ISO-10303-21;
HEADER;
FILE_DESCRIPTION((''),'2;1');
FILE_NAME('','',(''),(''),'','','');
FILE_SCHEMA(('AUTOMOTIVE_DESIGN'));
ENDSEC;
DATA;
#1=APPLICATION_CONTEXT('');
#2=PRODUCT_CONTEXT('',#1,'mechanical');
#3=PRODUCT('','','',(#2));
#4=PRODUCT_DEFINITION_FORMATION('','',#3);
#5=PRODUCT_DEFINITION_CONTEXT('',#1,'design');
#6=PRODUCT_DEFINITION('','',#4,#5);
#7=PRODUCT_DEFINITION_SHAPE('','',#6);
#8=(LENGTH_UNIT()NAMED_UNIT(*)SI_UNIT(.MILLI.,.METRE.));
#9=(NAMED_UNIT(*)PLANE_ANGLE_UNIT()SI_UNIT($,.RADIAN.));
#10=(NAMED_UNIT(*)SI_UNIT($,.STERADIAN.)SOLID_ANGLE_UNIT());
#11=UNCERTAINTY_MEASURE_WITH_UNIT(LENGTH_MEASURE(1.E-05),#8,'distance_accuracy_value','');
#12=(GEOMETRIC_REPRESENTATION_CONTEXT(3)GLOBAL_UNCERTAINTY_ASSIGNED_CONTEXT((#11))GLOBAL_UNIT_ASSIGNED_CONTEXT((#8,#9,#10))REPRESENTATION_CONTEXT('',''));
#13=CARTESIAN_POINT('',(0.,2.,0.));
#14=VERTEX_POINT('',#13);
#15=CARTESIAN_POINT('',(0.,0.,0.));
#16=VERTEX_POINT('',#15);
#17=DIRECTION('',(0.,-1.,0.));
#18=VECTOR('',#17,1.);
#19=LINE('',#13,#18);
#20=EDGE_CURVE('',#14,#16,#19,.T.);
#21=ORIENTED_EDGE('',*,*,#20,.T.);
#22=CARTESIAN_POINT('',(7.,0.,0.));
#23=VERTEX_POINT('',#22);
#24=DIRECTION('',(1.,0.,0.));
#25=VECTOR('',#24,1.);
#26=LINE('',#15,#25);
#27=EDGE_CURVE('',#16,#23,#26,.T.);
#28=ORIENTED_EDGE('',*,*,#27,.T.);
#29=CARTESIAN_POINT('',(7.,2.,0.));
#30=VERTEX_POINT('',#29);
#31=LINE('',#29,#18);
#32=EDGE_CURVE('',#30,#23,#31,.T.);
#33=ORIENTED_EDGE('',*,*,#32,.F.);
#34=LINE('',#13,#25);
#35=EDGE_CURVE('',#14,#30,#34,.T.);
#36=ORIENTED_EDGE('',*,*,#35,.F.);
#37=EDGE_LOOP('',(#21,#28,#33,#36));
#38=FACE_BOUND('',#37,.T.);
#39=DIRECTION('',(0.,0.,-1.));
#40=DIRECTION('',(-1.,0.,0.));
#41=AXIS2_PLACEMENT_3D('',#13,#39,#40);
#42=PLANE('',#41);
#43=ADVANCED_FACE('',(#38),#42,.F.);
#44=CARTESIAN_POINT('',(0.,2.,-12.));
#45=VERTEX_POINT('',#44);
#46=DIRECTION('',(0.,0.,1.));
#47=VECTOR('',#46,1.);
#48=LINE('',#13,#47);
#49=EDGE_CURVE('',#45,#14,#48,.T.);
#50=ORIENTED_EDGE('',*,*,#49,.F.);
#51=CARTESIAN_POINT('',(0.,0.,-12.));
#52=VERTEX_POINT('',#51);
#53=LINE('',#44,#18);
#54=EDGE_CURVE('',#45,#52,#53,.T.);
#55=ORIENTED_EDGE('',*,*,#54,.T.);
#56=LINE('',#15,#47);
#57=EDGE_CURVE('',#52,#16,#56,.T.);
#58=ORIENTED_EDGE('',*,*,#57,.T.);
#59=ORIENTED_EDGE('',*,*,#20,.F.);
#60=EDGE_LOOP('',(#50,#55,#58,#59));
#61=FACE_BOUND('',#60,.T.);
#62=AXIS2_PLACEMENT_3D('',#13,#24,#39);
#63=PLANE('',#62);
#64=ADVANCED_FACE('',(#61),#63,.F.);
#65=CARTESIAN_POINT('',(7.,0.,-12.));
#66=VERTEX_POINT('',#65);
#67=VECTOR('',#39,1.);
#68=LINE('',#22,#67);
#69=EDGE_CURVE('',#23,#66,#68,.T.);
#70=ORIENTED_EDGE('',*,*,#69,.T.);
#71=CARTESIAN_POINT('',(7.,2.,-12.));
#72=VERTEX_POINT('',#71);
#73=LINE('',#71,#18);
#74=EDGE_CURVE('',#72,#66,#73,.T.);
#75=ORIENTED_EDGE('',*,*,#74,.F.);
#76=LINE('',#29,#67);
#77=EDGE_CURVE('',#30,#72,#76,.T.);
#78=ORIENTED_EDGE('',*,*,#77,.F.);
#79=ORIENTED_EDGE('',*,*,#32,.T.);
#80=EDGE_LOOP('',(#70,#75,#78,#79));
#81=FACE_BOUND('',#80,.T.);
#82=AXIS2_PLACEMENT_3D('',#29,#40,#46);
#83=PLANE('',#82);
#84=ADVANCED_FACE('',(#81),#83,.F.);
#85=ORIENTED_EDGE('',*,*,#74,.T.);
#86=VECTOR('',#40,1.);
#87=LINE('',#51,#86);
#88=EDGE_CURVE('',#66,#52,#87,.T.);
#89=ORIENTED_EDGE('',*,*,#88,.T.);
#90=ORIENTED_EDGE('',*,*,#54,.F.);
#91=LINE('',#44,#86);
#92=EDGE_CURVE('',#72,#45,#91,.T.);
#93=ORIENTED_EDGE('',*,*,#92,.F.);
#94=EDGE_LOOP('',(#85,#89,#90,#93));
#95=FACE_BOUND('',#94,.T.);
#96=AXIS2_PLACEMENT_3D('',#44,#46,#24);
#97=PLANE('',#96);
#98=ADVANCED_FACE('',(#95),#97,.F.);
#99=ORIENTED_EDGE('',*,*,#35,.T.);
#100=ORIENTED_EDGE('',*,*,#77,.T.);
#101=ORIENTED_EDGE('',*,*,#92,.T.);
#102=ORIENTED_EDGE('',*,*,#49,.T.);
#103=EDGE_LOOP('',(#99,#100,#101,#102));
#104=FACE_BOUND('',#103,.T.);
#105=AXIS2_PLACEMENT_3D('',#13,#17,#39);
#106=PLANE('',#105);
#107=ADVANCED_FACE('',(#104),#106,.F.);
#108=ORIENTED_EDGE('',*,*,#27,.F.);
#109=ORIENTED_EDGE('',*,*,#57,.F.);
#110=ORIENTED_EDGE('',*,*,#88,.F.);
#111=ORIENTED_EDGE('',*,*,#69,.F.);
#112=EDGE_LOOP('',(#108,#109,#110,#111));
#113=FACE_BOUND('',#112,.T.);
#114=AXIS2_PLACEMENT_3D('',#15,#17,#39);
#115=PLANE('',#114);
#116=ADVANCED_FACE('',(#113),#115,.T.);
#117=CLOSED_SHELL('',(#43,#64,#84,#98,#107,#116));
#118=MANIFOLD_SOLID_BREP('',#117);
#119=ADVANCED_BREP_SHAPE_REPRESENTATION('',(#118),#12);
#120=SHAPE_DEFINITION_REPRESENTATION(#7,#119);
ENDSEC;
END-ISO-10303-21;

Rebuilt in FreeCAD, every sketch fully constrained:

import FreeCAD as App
import Part
import Sketcher
Q = App.Units.Quantity

doc = App.newDocument("Part")
params = doc.addObject("Spreadsheet::Sheet", "Params")
for row, (alias, value) in enumerate([
    ("sketch1_width", "7 mm"),
    ("sketch1_height", "12 mm"),
    ("pad1_length", "2 mm"),
], start=1):
    params.set(f"A{row}", alias)
    params.set(f"B{row}", "=" + value)
    params.setAlias(f"B{row}", alias)

body = doc.addObject("PartDesign::Body", "Body")

# Sketch on XZ plane
sketch1 = body.newObject("Sketcher::SketchObject", "Sketch")
sketch1.AttachmentSupport = (doc.getObject("XZ_Plane"), [""])
sketch1.MapMode = "FlatFace"
sketch1.addGeometry([
    Part.LineSegment(App.Vector(0, -12, 0), App.Vector(0, 0, 0)),
    Part.LineSegment(App.Vector(0, 0, 0), App.Vector(7, 0, 0)),
    Part.LineSegment(App.Vector(7, 0, 0), App.Vector(7, -12, 0)),
    Part.LineSegment(App.Vector(7, -12, 0), App.Vector(0, -12, 0)),
], False)
sketch1.addConstraint([
    Sketcher.Constraint("Coincident", 0, 2, 1, 1),
    Sketcher.Constraint("Coincident", 1, 2, 2, 1),
    Sketcher.Constraint("Coincident", 2, 2, 3, 1),
    Sketcher.Constraint("Coincident", 3, 2, 0, 1),
    Sketcher.Constraint("Vertical", 0),
    Sketcher.Constraint("Horizontal", 1),
    Sketcher.Constraint("Vertical", 2),
    Sketcher.Constraint("Horizontal", 3),
    Sketcher.Constraint("Coincident", 0, 2, -1, 1),
    Sketcher.Constraint("DistanceX", 1, 1, 1, 2, Q("7 mm")),
    Sketcher.Constraint("DistanceY", 0, 1, 0, 2, Q("12 mm")),
])
sketch1.setExpression("Constraints[9]", "Params.sketch1_width")
sketch1.setExpression("Constraints[10]", "Params.sketch1_height")
pad1 = body.newObject("PartDesign::Pad", "Pad")
pad1.Profile = sketch1
pad1.setExpression("Length", "Params.pad1_length")
pad1.Reversed = True

doc.recompute()
